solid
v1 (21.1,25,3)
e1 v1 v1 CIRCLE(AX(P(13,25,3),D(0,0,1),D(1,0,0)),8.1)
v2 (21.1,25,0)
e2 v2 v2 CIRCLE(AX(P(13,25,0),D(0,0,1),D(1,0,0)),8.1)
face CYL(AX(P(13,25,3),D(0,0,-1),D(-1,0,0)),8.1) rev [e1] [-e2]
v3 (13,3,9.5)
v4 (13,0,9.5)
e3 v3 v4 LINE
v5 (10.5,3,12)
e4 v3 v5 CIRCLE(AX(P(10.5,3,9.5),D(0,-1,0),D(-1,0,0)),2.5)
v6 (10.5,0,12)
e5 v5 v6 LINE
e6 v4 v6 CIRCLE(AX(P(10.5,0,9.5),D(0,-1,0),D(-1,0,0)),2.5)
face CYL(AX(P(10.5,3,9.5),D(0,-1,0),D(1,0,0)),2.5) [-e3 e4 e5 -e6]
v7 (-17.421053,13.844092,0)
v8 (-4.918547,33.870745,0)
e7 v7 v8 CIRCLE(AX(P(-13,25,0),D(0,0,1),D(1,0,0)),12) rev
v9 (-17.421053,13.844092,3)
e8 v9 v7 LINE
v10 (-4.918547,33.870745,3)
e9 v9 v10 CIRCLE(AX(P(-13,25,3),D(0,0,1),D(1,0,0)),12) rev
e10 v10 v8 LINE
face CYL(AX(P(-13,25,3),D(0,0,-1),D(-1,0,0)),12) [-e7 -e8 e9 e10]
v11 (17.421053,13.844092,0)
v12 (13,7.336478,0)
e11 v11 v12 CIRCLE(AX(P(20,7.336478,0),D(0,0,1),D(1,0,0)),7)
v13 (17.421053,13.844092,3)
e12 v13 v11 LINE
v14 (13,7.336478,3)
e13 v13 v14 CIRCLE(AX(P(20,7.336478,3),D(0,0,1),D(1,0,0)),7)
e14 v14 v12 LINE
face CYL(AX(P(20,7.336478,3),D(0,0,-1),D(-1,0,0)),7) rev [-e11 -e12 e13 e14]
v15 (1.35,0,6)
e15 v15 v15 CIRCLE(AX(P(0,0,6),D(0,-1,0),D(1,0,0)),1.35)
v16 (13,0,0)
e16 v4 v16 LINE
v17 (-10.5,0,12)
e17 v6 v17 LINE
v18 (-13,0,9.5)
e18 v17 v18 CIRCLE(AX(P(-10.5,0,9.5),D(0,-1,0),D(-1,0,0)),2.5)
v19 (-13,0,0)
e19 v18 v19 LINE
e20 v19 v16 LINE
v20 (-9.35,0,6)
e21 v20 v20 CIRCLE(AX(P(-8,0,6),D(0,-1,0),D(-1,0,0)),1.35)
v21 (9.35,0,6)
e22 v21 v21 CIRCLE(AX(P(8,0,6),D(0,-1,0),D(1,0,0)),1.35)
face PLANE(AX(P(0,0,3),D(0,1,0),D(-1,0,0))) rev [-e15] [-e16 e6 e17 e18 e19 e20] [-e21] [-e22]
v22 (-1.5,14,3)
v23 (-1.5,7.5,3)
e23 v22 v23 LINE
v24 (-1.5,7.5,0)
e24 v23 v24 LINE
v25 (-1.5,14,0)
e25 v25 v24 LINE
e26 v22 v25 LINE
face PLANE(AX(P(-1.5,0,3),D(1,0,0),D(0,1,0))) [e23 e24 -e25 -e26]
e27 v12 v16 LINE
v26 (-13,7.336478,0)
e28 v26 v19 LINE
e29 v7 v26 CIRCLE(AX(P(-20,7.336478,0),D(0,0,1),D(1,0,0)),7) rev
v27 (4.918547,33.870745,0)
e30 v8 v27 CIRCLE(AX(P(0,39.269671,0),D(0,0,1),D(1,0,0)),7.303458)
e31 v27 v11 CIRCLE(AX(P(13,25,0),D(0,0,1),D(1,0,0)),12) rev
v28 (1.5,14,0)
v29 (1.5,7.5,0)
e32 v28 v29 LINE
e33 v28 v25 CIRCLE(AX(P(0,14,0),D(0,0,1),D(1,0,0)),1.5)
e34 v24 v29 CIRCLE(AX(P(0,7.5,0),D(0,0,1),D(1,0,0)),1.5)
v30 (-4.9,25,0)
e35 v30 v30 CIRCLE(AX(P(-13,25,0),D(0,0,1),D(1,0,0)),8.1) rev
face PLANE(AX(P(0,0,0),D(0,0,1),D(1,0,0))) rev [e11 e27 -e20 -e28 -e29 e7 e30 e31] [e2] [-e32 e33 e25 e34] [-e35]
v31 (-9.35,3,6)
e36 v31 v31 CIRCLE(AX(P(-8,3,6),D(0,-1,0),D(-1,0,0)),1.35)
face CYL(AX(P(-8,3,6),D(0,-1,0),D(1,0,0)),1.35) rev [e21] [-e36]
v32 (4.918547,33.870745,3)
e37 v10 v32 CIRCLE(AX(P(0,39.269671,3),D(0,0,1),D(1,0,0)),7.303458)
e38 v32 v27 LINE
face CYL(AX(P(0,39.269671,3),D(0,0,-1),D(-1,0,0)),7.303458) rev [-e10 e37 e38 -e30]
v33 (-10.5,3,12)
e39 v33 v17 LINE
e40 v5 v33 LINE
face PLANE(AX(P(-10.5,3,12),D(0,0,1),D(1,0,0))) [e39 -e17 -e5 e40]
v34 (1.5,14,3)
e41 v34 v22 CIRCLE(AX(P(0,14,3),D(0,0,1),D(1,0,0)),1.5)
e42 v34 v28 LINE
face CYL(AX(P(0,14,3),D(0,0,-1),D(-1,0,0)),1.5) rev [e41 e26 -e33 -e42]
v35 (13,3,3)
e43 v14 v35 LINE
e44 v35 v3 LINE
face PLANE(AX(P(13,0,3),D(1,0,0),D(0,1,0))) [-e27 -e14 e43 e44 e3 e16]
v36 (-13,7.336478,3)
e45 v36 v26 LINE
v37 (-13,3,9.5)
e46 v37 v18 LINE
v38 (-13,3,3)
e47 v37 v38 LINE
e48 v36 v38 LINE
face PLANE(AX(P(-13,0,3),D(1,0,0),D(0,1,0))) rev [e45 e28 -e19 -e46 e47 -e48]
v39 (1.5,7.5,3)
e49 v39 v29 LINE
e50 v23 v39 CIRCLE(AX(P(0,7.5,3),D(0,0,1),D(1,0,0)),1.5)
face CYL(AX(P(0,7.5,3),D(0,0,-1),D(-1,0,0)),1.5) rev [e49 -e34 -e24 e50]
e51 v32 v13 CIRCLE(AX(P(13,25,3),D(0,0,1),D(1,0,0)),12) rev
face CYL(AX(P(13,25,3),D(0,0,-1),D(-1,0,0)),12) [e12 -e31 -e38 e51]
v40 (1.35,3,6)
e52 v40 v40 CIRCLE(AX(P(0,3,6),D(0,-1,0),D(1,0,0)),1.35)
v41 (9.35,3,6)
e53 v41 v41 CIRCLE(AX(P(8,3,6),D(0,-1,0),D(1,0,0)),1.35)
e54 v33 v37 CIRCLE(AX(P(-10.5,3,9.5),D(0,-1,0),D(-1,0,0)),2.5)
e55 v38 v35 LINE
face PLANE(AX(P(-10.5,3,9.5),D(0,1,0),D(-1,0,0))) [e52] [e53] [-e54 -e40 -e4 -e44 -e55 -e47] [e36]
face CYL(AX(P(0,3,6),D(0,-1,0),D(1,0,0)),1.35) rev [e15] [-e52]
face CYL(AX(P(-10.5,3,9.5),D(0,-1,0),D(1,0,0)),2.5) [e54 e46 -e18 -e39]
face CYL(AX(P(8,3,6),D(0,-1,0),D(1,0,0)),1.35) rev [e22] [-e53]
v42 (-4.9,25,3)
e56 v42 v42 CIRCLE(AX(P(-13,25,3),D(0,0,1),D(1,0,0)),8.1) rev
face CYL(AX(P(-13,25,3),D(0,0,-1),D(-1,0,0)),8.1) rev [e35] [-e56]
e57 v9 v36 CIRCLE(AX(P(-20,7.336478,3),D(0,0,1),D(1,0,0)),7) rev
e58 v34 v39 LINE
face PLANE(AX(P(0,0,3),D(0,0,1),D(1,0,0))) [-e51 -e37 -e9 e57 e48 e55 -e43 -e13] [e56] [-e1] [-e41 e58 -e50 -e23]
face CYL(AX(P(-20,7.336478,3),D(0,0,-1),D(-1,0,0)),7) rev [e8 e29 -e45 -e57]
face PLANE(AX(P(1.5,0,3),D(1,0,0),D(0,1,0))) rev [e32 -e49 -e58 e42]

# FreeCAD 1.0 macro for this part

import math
import FreeCAD as App
import Part
import Sketcher

doc = App.newDocument("Part")
body = doc.addObject("PartDesign::Body", "Body")

# Sketch on XY plane
sketch1 = body.newObject("Sketcher::SketchObject", "Sketch")
sketch1.AttachmentSupport = (doc.getObject("XY_Plane"), [""])
sketch1.MapMode = "FlatFace"
sketch1.addGeometry(Part.LineSegment(App.Vector(-13, 7.3, 0), App.Vector(-13, 0, 0)), False)
sketch1.addGeometry(Part.LineSegment(App.Vector(-13, 0, 0), App.Vector(13, 0, 0)), False)
sketch1.addGeometry(Part.LineSegment(App.Vector(13, 0, 0), App.Vector(13, 7.3, 0)), False)
sketch1.addGeometry(Part.ArcOfCircle(Part.Circle(App.Vector(20, 7.3, 0), App.Vector(0, 0, 1), 7), math.radians(112), math.radians(180)), False)
sketch1.addGeometry(Part.ArcOfCircle(Part.Circle(App.Vector(13, 25, 0), App.Vector(0, 0, 1), 12), math.radians(-68), math.radians(0)), False)
sketch1.addGeometry(Part.ArcOfCircle(Part.Circle(App.Vector(13, 25, 0), App.Vector(0, 0, 1), 12), math.radians(0), math.radians(132)), False)
sketch1.addGeometry(Part.ArcOfCircle(Part.Circle(App.Vector(0, 39.3, 0), App.Vector(0, 0, 1), 7.3), math.radians(-132), math.radians(-48)), False)
sketch1.addGeometry(Part.ArcOfCircle(Part.Circle(App.Vector(-13, 25, 0), App.Vector(0, 0, 1), 12), math.radians(48), math.radians(180)), False)
sketch1.addGeometry(Part.ArcOfCircle(Part.Circle(App.Vector(-13, 25, 0), App.Vector(0, 0, 1), 12), math.radians(-180), math.radians(-112)), False)
sketch1.addGeometry(Part.ArcOfCircle(Part.Circle(App.Vector(-20, 7.3, 0), App.Vector(0, 0, 1), 7), math.radians(0), math.radians(68)), False)
sketch1.addGeometry(Part.LineSegment(App.Vector(-1.5, 7.5, 0), App.Vector(-1.5, 14, 0)), False)
sketch1.addGeometry(Part.ArcOfCircle(Part.Circle(App.Vector(0, 14, 0), App.Vector(0, 0, 1), 1.5), math.radians(0), math.radians(180)), False)
sketch1.addGeometry(Part.LineSegment(App.Vector(1.5, 14, 0), App.Vector(1.5, 7.5, 0)), False)
sketch1.addGeometry(Part.ArcOfCircle(Part.Circle(App.Vector(0, 7.5, 0), App.Vector(0, 0, 1), 1.5), math.radians(180), math.radians(360)), False)
sketch1.addGeometry(Part.Circle(App.Vector(-13, 25, 0), App.Vector(0, 0, 1), 8.1), False)
sketch1.addGeometry(Part.Circle(App.Vector(13, 25, 0), App.Vector(0, 0, 1), 8.1), False)
sketch1.addConstraint(Sketcher.Constraint("Coincident", 0, 2, 1, 1))
sketch1.addConstraint(Sketcher.Constraint("Coincident", 1, 2, 2, 1))
sketch1.addConstraint(Sketcher.Constraint("Tangent", 2, 2, 3, 2))
sketch1.addConstraint(Sketcher.Constraint("Tangent", 3, 1, 4, 1))
sketch1.addConstraint(Sketcher.Constraint("Tangent", 4, 2, 5, 1))
sketch1.addConstraint(Sketcher.Constraint("Tangent", 5, 2, 6, 2))
sketch1.addConstraint(Sketcher.Constraint("Tangent", 6, 1, 7, 1))
sketch1.addConstraint(Sketcher.Constraint("Tangent", 7, 2, 8, 1))
sketch1.addConstraint(Sketcher.Constraint("Tangent", 8, 2, 9, 2))
sketch1.addConstraint(Sketcher.Constraint("Tangent", 9, 1, 0, 1))
sketch1.addConstraint(Sketcher.Constraint("Tangent", 10, 2, 11, 2))
sketch1.addConstraint(Sketcher.Constraint("Tangent", 11, 1, 12, 1))
sketch1.addConstraint(Sketcher.Constraint("Tangent", 12, 2, 13, 2))
sketch1.addConstraint(Sketcher.Constraint("Tangent", 13, 1, 10, 1))
sketch1.addConstraint(Sketcher.Constraint("Vertical", 0))
sketch1.addConstraint(Sketcher.Constraint("Horizontal", 1))
sketch1.addConstraint(Sketcher.Constraint("Vertical", 2))
sketch1.addConstraint(Sketcher.Constraint("Vertical", 10))
sketch1.addConstraint(Sketcher.Constraint("Vertical", 12))
sketch1.addConstraint(Sketcher.Constraint("Coincident", 14, 3, 7, 3))
sketch1.addConstraint(Sketcher.Constraint("Coincident", 15, 3, 4, 3))
sketch1.addConstraint(Sketcher.Constraint("Equal", 4, 5))
sketch1.addConstraint(Sketcher.Constraint("Equal", 5, 7))
sketch1.addConstraint(Sketcher.Constraint("Equal", 7, 8))
sketch1.addConstraint(Sketcher.Constraint("Equal", 3, 9))
sketch1.addConstraint(Sketcher.Constraint("Equal", 14, 15))
sketch1.addConstraint(Sketcher.Constraint("Symmetric", 0, 2, 1, 2, -1, 1))
sketch1.addConstraint(Sketcher.Constraint("Symmetric", 4, 3, 7, 3, -2))
sketch1.addConstraint(Sketcher.Constraint("PointOnObject", 11, 3, -2))
sketch1.addConstraint(Sketcher.Constraint("Horizontal", 15, 3, 4, 2))
sketch1.addConstraint(Sketcher.Constraint("Horizontal", 4, 2, 7, 2))
sketch1.addConstraint(Sketcher.Constraint("Vertical", 14, 3, 0, 2))
sketch1.addConstraint(Sketcher.Constraint("Radius", 3, 7.0))
sketch1.addConstraint(Sketcher.Constraint("Radius", 4, 12.0))
sketch1.addConstraint(Sketcher.Constraint("Diameter", 14, 16.2))
sketch1.addConstraint(Sketcher.Constraint("Radius", 11, 1.5))
sketch1.addConstraint(Sketcher.Constraint("DistanceX", 1, 1, 1, 2, 26.0))
sketch1.addConstraint(Sketcher.Constraint("DistanceY", 10, 1, 10, 2, 6.5))
sketch1.addConstraint(Sketcher.Constraint("DistanceY", -1, 1, 4, 3, 25.0))
sketch1.addConstraint(Sketcher.Constraint("DistanceY", -1, 1, 11, 3, 14.0))
sketch1.addConstraint(Sketcher.Constraint("Radius", 6, 7.303458))
pad1 = body.newObject("PartDesign::Pad", "Pad")
pad1.Profile = sketch1
pad1.Length = 3

# Sketch on XZ plane
sketch2 = body.newObject("Sketcher::SketchObject", "Sketch001")
sketch2.AttachmentSupport = (doc.getObject("XZ_Plane"), [""])
sketch2.MapMode = "FlatFace"
sketch2.addGeometry(Part.LineSegment(App.Vector(-13, 3, 0), App.Vector(13, 3, 0)), False)
sketch2.addGeometry(Part.LineSegment(App.Vector(13, 3, 0), App.Vector(13, 9.5, 0)), False)
sketch2.addGeometry(Part.ArcOfCircle(Part.Circle(App.Vector(10.5, 9.5, 0), App.Vector(0, 0, 1), 2.5), math.radians(0), math.radians(90)), False)
sketch2.addGeometry(Part.LineSegment(App.Vector(10.5, 12, 0), App.Vector(-10.5, 12, 0)), False)
sketch2.addGeometry(Part.ArcOfCircle(Part.Circle(App.Vector(-10.5, 9.5, 0), App.Vector(0, 0, 1), 2.5), math.radians(90), math.radians(180)), False)
sketch2.addGeometry(Part.LineSegment(App.Vector(-13, 9.5, 0), App.Vector(-13, 3, 0)), False)
sketch2.addGeometry(Part.Circle(App.Vector(-8, 6, 0), App.Vector(0, 0, 1), 1.4), False)
sketch2.addGeometry(Part.Circle(App.Vector(0, 6, 0), App.Vector(0, 0, 1), 1.4), False)
sketch2.addGeometry(Part.Circle(App.Vector(8, 6, 0), App.Vector(0, 0, 1), 1.4), False)
sketch2.addConstraint(Sketcher.Constraint("Coincident", 0, 2, 1, 1))
sketch2.addConstraint(Sketcher.Constraint("Tangent", 1, 2, 2, 1))
sketch2.addConstraint(Sketcher.Constraint("Tangent", 2, 2, 3, 1))
sketch2.addConstraint(Sketcher.Constraint("Tangent", 3, 2, 4, 1))
sketch2.addConstraint(Sketcher.Constraint("Tangent", 4, 2, 5, 1))
sketch2.addConstraint(Sketcher.Constraint("Coincident", 5, 2, 0, 1))
sketch2.addConstraint(Sketcher.Constraint("Horizontal", 0))
sketch2.addConstraint(Sketcher.Constraint("Vertical", 1))
sketch2.addConstraint(Sketcher.Constraint("Horizontal", 3))
sketch2.addConstraint(Sketcher.Constraint("Vertical", 5))
sketch2.addConstraint(Sketcher.Constraint("Equal", 2, 4))
sketch2.addConstraint(Sketcher.Constraint("Equal", 6, 7))
sketch2.addConstraint(Sketcher.Constraint("Equal", 7, 8))
sketch2.addConstraint(Sketcher.Constraint("Symmetric", 6, 3, 8, 3, -2))
sketch2.addConstraint(Sketcher.Constraint("PointOnObject", 7, 3, -2))
sketch2.addConstraint(Sketcher.Constraint("Horizontal", 6, 3, 7, 3))
sketch2.addConstraint(Sketcher.Constraint("Diameter", 6, 2.7))
sketch2.addConstraint(Sketcher.Constraint("Radius", 2, 2.5))
sketch2.addConstraint(Sketcher.Constraint("DistanceX", 0, 1, 0, 2, 26.0))
sketch2.addConstraint(Sketcher.Constraint("DistanceY", 1, 1, 1, 2, 6.5))
sketch2.addConstraint(Sketcher.Constraint("DistanceX", 6, 3, -1, 1, 8.0))
sketch2.addConstraint(Sketcher.Constraint("DistanceY", -1, 1, 6, 3, 6.0))
sketch2.addConstraint(Sketcher.Constraint("DistanceX", -1, 1, 0, 2, 13.0))
sketch2.addConstraint(Sketcher.Constraint("DistanceY", -1, 1, 0, 2, 3.0))
pad2 = body.newObject("PartDesign::Pad", "Pad001")
pad2.Profile = sketch2
pad2.Length = 3
pad2.Reversed = True

doc.recompute()
